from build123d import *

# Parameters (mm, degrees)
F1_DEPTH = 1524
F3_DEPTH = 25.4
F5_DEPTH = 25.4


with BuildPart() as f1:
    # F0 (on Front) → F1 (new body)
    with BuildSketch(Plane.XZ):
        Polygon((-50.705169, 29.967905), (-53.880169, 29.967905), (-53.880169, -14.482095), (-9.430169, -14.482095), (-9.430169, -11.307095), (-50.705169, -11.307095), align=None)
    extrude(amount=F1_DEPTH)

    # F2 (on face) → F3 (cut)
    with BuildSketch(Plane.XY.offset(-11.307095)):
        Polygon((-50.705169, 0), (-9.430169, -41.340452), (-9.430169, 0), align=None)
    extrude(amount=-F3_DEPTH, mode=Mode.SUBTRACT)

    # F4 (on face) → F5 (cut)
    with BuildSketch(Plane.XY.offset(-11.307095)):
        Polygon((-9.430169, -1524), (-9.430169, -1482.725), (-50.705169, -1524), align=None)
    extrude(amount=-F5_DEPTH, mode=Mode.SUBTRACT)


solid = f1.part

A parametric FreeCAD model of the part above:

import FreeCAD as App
import Part
import Sketcher
from FreeCAD import Vector
Q = App.Units.Quantity


def add_polygon(sketch, points):
    """Adds a closed chain of lines whose ends are joined by coincident constraints."""
    first, n = sketch.GeometryCount, len(points)
    for a, b in zip(points, points[1:] + points[:1]):
        sketch.addGeometry(Part.LineSegment(App.Vector(*a, 0), App.Vector(*b, 0)), False)
    for i in range(n):
        sketch.addConstraint(Sketcher.Constraint("Coincident", first + i, 2, first + (i + 1) % n, 1))

doc = App.newDocument("Part")
body = doc.addObject("PartDesign::Body", "Body")

sketch1 = body.newObject("Sketcher::SketchObject", "Sketch")
sketch1.AttachmentSupport = (doc.getObject("XZ_Plane"), [""])
sketch1.MapMode = "FlatFace"
add_polygon(sketch1, [(-50.705169, 29.967905), (-53.880169, 29.967905), (-53.880169, -14.482095), (-9.430169, -14.482095), (-9.430169, -11.307095), (-50.705169, -11.307095)])
sketch1.addConstraint([
    Sketcher.Constraint("Horizontal", 0),
    Sketcher.Constraint("Vertical", 1),
    Sketcher.Constraint("Horizontal", 2),
    Sketcher.Constraint("Vertical", 3),
    Sketcher.Constraint("Horizontal", 4),
    Sketcher.Constraint("Vertical", 5),
    Sketcher.Constraint("Equal", 2, 1),
    Sketcher.Constraint("Equal", 0, 3),
    Sketcher.Constraint("DistanceX", 2, 1, 2, 2, Q("1.75 in")),
    Sketcher.Constraint("DistanceX", 0, 2, 0, 1, Q("0.125 in")),
    Sketcher.Constraint("DistanceX", 0, 2, -1, 1, Q("53.880169 mm")),
    Sketcher.Constraint("DistanceY", -1, 1, 0, 2, Q("29.967905 mm")),
])
pad1 = body.newObject("PartDesign::Pad", "Pad")
pad1.Profile = sketch1
pad1.Length = Q("60 in")

sketch2 = body.newObject("Sketcher::SketchObject", "Sketch001")
sketch2.AttachmentSupport = (doc.getObject("XY_Plane"), [""])
sketch2.MapMode = "FlatFace"
sketch2.AttachmentOffset = App.Placement(Vector(0, 0, -11.307095), App.Rotation())
add_polygon(sketch2, [(-50.705169, 0), (-9.430169, -41.340452), (-9.430169, 0)])
sketch2.addConstraint([
    Sketcher.Constraint("Vertical", 1),
    Sketcher.Constraint("Horizontal", 2),
    Sketcher.Constraint("PointOnObject", 1, 2, -1),
    Sketcher.Constraint("DistanceX", 2, 2, 2, 1, Q("1.625 in")),
    Sketcher.Constraint("DistanceY", 1, 1, 1, 2, Q("41.340452 mm")),
    Sketcher.Constraint("DistanceX", 0, 2, -1, 1, Q("9.430169 mm")),
])
pocket1 = body.newObject("PartDesign::Pocket", "Pocket")
pocket1.Profile = sketch2
pocket1.Length = Q("1 in")

sketch3 = body.newObject("Sketcher::SketchObject", "Sketch002")
sketch3.AttachmentSupport = (doc.getObject("XY_Plane"), [""])
sketch3.MapMode = "FlatFace"
sketch3.AttachmentOffset = App.Placement(Vector(0, 0, -11.307095), App.Rotation())
add_polygon(sketch3, [(-9.430169, -1524), (-9.430169, -1482.725), (-50.705169, -1524)])
sketch3.addConstraint([
    Sketcher.Constraint("Vertical", 0),
    Sketcher.Constraint("Horizontal", 2),
    Sketcher.Constraint("Equal", 2, 0),
    Sketcher.Constraint("DistanceY", 1, 2, -1, 1, Q("60 in")),
    Sketcher.Constraint("DistanceX", 2, 1, 2, 2, Q("1.625 in")),
    Sketcher.Constraint("DistanceX", 0, 2, -1, 1, Q("9.430169 mm")),
])
pocket2 = body.newObject("PartDesign::Pocket", "Pocket001")
pocket2.Profile = sketch3
pocket2.Length = Q("1 in")

doc.recompute()
